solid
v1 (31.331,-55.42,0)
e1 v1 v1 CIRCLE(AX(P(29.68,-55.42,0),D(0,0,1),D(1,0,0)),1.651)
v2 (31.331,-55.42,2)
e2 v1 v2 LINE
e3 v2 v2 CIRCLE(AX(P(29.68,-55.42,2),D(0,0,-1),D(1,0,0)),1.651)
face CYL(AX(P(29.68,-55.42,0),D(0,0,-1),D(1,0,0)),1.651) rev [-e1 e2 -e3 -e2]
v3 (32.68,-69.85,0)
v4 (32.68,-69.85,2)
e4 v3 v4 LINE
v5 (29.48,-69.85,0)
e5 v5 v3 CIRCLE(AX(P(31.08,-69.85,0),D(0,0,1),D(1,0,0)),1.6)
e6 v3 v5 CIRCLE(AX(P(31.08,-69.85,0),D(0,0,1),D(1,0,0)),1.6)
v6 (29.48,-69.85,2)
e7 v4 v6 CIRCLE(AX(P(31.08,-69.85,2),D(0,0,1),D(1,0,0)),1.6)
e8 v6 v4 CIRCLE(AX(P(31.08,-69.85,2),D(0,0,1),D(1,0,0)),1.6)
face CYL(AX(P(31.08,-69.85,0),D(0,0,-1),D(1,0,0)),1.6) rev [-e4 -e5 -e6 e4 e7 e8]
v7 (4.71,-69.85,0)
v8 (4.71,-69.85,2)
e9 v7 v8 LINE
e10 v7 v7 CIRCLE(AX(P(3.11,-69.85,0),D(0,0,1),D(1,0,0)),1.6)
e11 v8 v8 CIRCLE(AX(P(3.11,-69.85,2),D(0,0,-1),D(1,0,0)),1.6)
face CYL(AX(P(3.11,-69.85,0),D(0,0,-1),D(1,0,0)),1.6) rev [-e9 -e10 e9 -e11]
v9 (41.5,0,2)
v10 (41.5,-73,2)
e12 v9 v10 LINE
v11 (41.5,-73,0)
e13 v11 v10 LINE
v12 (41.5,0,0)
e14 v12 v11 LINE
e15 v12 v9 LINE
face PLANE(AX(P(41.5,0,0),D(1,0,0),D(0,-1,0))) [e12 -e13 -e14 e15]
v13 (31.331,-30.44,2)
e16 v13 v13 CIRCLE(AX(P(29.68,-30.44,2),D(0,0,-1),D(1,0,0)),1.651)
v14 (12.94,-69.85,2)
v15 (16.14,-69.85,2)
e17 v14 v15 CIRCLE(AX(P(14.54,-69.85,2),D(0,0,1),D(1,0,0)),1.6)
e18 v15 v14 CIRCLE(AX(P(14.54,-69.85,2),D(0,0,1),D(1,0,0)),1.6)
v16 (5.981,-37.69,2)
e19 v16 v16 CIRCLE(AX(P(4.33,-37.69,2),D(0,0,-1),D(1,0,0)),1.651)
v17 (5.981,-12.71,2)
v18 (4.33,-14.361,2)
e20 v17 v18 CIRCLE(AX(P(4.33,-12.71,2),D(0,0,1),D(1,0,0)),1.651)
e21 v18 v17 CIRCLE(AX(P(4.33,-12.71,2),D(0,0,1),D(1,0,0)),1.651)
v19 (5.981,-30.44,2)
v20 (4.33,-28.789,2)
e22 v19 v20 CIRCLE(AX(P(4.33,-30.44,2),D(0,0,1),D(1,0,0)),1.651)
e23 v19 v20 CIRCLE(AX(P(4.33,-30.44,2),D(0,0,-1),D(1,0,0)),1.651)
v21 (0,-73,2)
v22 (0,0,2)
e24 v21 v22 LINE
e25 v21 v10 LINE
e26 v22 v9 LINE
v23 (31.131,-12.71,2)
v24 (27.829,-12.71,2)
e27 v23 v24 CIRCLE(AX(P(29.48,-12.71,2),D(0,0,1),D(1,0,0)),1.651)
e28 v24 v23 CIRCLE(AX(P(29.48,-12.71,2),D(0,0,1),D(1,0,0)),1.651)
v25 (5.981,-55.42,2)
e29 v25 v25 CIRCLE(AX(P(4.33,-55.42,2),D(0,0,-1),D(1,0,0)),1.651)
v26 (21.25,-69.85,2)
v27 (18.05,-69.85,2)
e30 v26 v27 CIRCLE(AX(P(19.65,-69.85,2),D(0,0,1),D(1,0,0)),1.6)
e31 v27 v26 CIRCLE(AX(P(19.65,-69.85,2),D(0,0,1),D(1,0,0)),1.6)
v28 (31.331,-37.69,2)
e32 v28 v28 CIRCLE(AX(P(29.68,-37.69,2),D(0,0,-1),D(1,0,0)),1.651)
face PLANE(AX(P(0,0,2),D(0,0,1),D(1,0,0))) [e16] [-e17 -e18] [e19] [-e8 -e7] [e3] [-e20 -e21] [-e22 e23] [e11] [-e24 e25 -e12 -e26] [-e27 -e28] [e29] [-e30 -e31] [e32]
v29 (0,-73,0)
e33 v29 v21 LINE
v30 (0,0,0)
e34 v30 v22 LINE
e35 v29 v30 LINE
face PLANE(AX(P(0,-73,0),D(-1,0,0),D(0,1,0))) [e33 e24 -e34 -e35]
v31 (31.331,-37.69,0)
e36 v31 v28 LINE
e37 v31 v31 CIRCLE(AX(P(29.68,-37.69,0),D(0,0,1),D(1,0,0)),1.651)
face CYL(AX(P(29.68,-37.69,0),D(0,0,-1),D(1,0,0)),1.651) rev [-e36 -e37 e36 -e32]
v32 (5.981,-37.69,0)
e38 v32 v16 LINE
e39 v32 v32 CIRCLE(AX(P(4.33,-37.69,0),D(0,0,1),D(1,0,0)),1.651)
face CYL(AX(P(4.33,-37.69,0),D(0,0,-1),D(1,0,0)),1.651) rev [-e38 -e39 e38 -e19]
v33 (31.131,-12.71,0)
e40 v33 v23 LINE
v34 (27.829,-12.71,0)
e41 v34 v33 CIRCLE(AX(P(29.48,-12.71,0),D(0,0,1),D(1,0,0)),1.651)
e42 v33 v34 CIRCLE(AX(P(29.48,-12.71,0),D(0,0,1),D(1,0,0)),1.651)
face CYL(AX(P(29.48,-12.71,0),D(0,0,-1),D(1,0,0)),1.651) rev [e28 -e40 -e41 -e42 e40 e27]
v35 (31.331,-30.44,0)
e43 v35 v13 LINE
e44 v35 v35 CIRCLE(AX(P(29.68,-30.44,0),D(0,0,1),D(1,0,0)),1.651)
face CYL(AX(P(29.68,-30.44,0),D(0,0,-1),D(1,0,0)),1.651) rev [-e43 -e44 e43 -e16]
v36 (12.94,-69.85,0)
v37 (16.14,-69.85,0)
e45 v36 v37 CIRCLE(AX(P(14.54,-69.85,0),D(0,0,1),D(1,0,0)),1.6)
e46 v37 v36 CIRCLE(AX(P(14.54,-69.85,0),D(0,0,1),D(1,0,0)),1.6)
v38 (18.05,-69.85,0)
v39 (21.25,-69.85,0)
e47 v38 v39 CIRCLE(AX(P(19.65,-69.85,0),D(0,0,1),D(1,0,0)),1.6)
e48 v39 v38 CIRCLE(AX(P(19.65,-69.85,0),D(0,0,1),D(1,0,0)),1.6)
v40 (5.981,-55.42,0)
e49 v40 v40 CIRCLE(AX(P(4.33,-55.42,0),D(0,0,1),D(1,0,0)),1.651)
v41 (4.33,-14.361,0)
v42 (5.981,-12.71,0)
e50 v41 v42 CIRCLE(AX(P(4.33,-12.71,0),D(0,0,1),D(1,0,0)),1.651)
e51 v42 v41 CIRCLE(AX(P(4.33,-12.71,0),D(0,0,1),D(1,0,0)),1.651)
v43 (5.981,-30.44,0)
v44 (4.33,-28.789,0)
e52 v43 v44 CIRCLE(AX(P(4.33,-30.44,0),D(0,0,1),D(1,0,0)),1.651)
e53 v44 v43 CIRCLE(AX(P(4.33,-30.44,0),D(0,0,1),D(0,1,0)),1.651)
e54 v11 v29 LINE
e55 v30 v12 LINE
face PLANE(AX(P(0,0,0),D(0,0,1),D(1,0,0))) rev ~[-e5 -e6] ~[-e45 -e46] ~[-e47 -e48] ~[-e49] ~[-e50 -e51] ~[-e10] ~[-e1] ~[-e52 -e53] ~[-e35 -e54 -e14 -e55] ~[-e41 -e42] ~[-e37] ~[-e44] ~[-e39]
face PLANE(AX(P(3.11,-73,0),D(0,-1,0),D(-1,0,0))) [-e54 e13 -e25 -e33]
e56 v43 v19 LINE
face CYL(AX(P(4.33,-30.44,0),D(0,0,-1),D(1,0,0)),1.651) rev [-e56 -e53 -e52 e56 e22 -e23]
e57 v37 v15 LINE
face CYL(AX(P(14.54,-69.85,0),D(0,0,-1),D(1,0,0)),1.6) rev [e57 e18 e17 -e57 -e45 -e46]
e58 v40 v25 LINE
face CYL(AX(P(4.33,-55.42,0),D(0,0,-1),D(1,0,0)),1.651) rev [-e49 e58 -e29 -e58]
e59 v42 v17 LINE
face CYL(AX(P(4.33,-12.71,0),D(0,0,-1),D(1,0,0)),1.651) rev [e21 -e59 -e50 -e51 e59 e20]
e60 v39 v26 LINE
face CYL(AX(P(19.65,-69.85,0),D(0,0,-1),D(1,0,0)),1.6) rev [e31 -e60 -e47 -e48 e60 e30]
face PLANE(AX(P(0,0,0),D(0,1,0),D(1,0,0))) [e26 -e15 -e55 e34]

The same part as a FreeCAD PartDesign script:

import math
import FreeCAD as App
import Part
import Sketcher

doc = App.newDocument("Part")
body = doc.addObject("PartDesign::Body", "Body")

sketch1 = body.newObject("Sketcher::SketchObject", "Sketch")
sketch1.AttachmentSupport = (doc.getObject("XY_Plane"), [""])
sketch1.MapMode = "FlatFace"
sketch1.addGeometry(Part.LineSegment(App.Vector(41.5, 0, 0), App.Vector(0, 0, 0)), False)
sketch1.addGeometry(Part.LineSegment(App.Vector(0, 0, 0), App.Vector(0, -73, 0)), False)
sketch1.addGeometry(Part.LineSegment(App.Vector(0, -73, 0), App.Vector(41.5, -73, 0)), False)
sketch1.addGeometry(Part.LineSegment(App.Vector(41.5, -73, 0), App.Vector(41.5, 0, 0)), False)
sketch1.addGeometry(Part.Circle(App.Vector(3.1, -69.8, 0), App.Vector(0, 0, 1), 1.6), False)
sketch1.addGeometry(Part.Circle(App.Vector(4.3, -55.4, 0), App.Vector(0, 0, 1), 1.7), False)
sketch1.addGeometry(Part.Circle(App.Vector(29.7, -55.4, 0), App.Vector(0, 0, 1), 1.7), False)
sketch1.addGeometry(Part.Circle(App.Vector(29.7, -37.7, 0), App.Vector(0, 0, 1), 1.7), False)
sketch1.addGeometry(Part.Circle(App.Vector(29.7, -30.4, 0), App.Vector(0, 0, 1), 1.7), False)
sketch1.addGeometry(Part.Circle(App.Vector(4.3, -30.4, 0), App.Vector(0, 0, 1), 1.7), False)
sketch1.addGeometry(Part.Circle(App.Vector(4.3, -37.7, 0), App.Vector(0, 0, 1), 1.7), False)
sketch1.addGeometry(Part.ArcOfCircle(Part.Circle(App.Vector(14.5, -69.8, 0), App.Vector(0, 0, 1), 1.6), math.radians(180), math.radians(360)), False)
sketch1.addGeometry(Part.ArcOfCircle(Part.Circle(App.Vector(14.5, -69.8, 0), App.Vector(0, 0, 1), 1.6), math.radians(0), math.radians(180)), False)
sketch1.addGeometry(Part.ArcOfCircle(Part.Circle(App.Vector(19.6, -69.8, 0), App.Vector(0, 0, 1), 1.6), math.radians(180), math.radians(360)), False)
sketch1.addGeometry(Part.ArcOfCircle(Part.Circle(App.Vector(19.6, -69.8, 0), App.Vector(0, 0, 1), 1.6), math.radians(0), math.radians(180)), False)
sketch1.addGeometry(Part.Circle(App.Vector(31.1, -69.8, 0), App.Vector(0, 0, 1), 1.6), False)
sketch1.addGeometry(Part.ArcOfCircle(Part.Circle(App.Vector(4.3, -12.7, 0), App.Vector(0, 0, 1), 1.7), math.radians(-90), math.radians(0)), False)
sketch1.addGeometry(Part.ArcOfCircle(Part.Circle(App.Vector(4.3, -12.7, 0), App.Vector(0, 0, 1), 1.7), math.radians(0), math.radians(270)), False)
sketch1.addGeometry(Part.Circle(App.Vector(29.5, -12.7, 0), App.Vector(0, 0, 1), 1.7), False)
sketch1.addConstraint(Sketcher.Constraint("Coincident", 0, 2, 1, 1))
sketch1.addConstraint(Sketcher.Constraint("Coincident", 1, 2, 2, 1))
sketch1.addConstraint(Sketcher.Constraint("Coincident", 2, 2, 3, 1))
sketch1.addConstraint(Sketcher.Constraint("Coincident", 3, 2, 0, 1))
sketch1.addConstraint(Sketcher.Constraint("Tangent", 11, 1, 12, 2))
sketch1.addConstraint(Sketcher.Constraint("Coincident", 12, 1, 11, 2))
sketch1.addConstraint(Sketcher.Constraint("Tangent", 13, 1, 14, 2))
sketch1.addConstraint(Sketcher.Constraint("Coincident", 14, 1, 13, 2))
sketch1.addConstraint(Sketcher.Constraint("Tangent", 16, 1, 17, 2))
sketch1.addConstraint(Sketcher.Constraint("Coincident", 17, 1, 16, 2))
sketch1.addConstraint(Sketcher.Constraint("Horizontal", 0))
sketch1.addConstraint(Sketcher.Constraint("Vertical", 1))
sketch1.addConstraint(Sketcher.Constraint("Horizontal", 2))
sketch1.addConstraint(Sketcher.Constraint("Vertical", 3))
sketch1.addConstraint(Sketcher.Constraint("Coincident", 0, 2, -1, 1))
sketch1.addConstraint(Sketcher.Constraint("Equal", 5, 6))
sketch1.addConstraint(Sketcher.Constraint("Equal", 6, 7))
sketch1.addConstraint(Sketcher.Constraint("Equal", 7, 8))
sketch1.addConstraint(Sketcher.Constraint("Equal", 8, 9))
sketch1.addConstraint(Sketcher.Constraint("Equal", 9, 10))
sketch1.addConstraint(Sketcher.Constraint("Equal", 4, 11))
sketch1.addConstraint(Sketcher.Constraint("Equal", 12, 13))
sketch1.addConstraint(Sketcher.Constraint("Equal", 14, 15))
sketch1.addConstraint(Sketcher.Constraint("Equal", 10, 16))
sketch1.addConstraint(Sketcher.Constraint("Equal", 17, 18))
sketch1.addConstraint(Sketcher.Constraint("Horizontal", 5, 3, 6, 3))
sketch1.addConstraint(Sketcher.Constraint("Horizontal", 8, 3, 9, 3))
sketch1.addConstraint(Sketcher.Constraint("Horizontal", 7, 3, 10, 3))
sketch1.addConstraint(Sketcher.Constraint("Horizontal", 4, 3, 11, 3))
sketch1.addConstraint(Sketcher.Constraint("Horizontal", 12, 3, 13, 3))
sketch1.addConstraint(Sketcher.Constraint("Horizontal", 14, 3, 15, 3))
sketch1.addConstraint(Sketcher.Constraint("Horizontal", 17, 3, 18, 3))
sketch1.addConstraint(Sketcher.Constraint("Horizontal", 15, 3, 11, 1))
sketch1.addConstraint(Sketcher.Constraint("Horizontal", 11, 1, 12, 1))
sketch1.addConstraint(Sketcher.Constraint("Horizontal", 12, 1, 13, 1))
sketch1.addConstraint(Sketcher.Constraint("Horizontal", 13, 1, 14, 1))
sketch1.addConstraint(Sketcher.Constraint("Horizontal", 18, 3, 17, 1))
sketch1.addConstraint(Sketcher.Constraint("Vertical", 6, 3, 7, 3))
sketch1.addConstraint(Sketcher.Constraint("Vertical", 7, 3, 8, 3))
sketch1.addConstraint(Sketcher.Constraint("Vertical", 5, 3, 9, 3))
sketch1.addConstraint(Sketcher.Constraint("Vertical", 9, 3, 10, 3))
sketch1.addConstraint(Sketcher.Constraint("Vertical", 10, 3, 16, 3))
sketch1.addConstraint(Sketcher.Constraint("Vertical", 17, 3, 16, 1))
sketch1.addConstraint(Sketcher.Constraint("Diameter", 4, 3.2))
sketch1.addConstraint(Sketcher.Constraint("DistanceY", 1, 2, 1, 1, 73.0))
sketch1.addConstraint(Sketcher.Constraint("Diameter", 5, 3.302))
sketch1.addConstraint(Sketcher.Constraint("DistanceX", 0, 2, 0, 1, 41.5))
sketch1.addConstraint(Sketcher.Constraint("DistanceX", -1, 1, 4, 3, 3.11))
sketch1.addConstraint(Sketcher.Constraint("DistanceX", -1, 1, 5, 3, 4.33))
sketch1.addConstraint(Sketcher.Constraint("DistanceY", 4, 3, 5, 3, 14.43))
sketch1.addConstraint(Sketcher.Constraint("DistanceX", 5, 3, 6, 3, 25.35))
sketch1.addConstraint(Sketcher.Constraint("DistanceY", 6, 3, 7, 3, 17.73))
sketch1.addConstraint(Sketcher.Constraint("DistanceY", 7, 3, 8, 3, 7.25))
sketch1.addConstraint(Sketcher.Constraint("DistanceX", 4, 3, 11, 3, 11.43))
sketch1.addConstraint(Sketcher.Constraint("DistanceX", 11, 3, 13, 3, 5.11))
sketch1.addConstraint(Sketcher.Constraint("DistanceX", 13, 3, 15, 3, 11.43))
sketch1.addConstraint(Sketcher.Constraint("DistanceY", 9, 3, 16, 3, 17.73))
sketch1.addConstraint(Sketcher.Constraint("DistanceY", 1, 2, 4, 3, 3.15))
sketch1.addConstraint(Sketcher.Constraint("DistanceX", 18, 3, 8, 3, 0.2))
pad1 = body.newObject("PartDesign::Pad", "Pad")
pad1.Profile = sketch1
pad1.Length = 2

doc.recompute()
